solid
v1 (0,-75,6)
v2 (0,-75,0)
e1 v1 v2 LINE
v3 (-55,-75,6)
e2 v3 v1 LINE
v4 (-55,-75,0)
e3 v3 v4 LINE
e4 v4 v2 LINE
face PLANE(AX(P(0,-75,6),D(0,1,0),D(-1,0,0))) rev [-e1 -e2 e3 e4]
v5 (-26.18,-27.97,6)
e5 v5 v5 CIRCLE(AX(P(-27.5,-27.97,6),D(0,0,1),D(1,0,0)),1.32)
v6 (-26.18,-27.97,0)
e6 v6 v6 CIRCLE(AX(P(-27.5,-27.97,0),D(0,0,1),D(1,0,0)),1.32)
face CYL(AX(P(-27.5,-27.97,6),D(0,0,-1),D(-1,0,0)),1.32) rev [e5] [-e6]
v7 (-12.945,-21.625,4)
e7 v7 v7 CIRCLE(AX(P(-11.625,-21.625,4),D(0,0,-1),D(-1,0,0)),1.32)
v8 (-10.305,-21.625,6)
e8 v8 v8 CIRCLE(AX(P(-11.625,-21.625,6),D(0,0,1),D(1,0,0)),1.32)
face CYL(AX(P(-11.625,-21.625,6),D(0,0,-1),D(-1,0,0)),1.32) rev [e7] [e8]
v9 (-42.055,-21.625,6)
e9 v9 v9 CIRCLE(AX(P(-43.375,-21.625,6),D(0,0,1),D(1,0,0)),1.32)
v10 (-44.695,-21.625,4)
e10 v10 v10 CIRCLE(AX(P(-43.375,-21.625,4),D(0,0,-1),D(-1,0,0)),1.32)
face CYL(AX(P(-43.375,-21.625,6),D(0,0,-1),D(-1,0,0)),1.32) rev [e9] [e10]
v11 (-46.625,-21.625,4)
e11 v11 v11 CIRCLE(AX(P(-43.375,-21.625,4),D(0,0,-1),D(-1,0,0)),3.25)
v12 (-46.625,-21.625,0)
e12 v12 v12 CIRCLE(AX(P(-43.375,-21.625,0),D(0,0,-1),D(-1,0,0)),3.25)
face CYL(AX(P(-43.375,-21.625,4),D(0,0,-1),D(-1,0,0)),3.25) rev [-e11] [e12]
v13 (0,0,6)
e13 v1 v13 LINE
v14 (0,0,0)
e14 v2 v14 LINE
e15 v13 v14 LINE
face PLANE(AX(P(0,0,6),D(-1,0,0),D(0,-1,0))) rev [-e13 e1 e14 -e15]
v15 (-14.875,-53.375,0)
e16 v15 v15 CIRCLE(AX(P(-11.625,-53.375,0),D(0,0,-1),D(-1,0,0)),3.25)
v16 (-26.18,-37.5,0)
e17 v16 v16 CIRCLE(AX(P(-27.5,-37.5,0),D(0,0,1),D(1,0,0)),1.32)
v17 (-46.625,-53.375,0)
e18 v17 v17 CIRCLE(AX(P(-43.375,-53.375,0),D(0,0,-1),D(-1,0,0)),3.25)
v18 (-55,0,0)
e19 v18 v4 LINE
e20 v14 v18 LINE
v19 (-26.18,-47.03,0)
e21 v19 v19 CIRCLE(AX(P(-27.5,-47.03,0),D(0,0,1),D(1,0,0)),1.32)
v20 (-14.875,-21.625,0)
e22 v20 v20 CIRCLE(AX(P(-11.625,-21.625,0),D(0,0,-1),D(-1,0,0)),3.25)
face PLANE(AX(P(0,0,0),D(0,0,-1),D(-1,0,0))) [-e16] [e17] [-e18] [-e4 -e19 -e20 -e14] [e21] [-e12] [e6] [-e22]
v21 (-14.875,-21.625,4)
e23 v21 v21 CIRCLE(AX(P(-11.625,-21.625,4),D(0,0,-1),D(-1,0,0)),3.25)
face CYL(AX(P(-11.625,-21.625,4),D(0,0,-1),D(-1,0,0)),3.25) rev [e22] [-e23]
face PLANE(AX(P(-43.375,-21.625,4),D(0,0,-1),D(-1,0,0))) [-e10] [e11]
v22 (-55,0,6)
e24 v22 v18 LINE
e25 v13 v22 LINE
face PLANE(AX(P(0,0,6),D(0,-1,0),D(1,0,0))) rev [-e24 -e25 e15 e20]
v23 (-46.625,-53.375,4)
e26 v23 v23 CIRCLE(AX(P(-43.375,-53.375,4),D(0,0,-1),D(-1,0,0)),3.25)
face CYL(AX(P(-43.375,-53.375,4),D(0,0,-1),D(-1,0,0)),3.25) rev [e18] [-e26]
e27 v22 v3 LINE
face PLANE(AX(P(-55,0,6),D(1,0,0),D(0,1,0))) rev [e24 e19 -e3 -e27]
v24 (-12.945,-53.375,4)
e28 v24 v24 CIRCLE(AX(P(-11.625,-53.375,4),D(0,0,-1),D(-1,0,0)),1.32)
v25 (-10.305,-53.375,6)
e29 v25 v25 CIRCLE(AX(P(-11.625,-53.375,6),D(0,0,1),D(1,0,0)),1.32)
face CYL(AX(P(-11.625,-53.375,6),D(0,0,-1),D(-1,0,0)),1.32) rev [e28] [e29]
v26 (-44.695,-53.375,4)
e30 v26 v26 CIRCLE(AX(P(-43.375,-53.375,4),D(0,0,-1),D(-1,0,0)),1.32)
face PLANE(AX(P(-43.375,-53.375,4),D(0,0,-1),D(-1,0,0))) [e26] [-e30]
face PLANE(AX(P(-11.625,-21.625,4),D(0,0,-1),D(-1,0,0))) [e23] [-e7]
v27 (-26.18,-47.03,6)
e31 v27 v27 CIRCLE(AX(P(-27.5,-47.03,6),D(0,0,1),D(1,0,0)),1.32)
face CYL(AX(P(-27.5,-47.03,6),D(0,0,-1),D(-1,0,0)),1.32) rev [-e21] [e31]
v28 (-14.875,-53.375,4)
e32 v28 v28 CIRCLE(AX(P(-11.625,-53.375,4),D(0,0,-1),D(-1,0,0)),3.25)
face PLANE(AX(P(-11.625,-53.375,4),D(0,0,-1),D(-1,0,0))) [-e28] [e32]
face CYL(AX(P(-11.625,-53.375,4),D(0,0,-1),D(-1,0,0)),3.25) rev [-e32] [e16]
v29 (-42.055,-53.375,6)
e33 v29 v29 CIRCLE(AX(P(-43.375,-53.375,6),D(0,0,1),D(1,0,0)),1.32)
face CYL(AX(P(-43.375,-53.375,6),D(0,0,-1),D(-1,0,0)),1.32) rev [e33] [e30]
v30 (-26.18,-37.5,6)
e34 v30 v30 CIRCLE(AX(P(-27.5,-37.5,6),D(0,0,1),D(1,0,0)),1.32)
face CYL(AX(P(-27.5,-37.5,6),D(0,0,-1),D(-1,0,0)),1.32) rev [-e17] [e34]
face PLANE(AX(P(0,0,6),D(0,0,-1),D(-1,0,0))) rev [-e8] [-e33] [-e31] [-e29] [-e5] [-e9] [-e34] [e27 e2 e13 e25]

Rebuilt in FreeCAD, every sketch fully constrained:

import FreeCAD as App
import Part
import Sketcher

doc = App.newDocument("Part")
body = doc.addObject("PartDesign::Body", "Body")

sketch1 = body.newObject("Sketcher::SketchObject", "Sketch")
sketch1.AttachmentSupport = (doc.getObject("XY_Plane"), [""])
sketch1.MapMode = "FlatFace"
sketch1.addGeometry([
    Part.LineSegment(App.Vector(-55, 0, 0), App.Vector(-55, -75, 0)),
    Part.LineSegment(App.Vector(-55, -75, 0), App.Vector(0, -75, 0)),
    Part.LineSegment(App.Vector(0, -75, 0), App.Vector(0, 0, 0)),
    Part.LineSegment(App.Vector(0, 0, 0), App.Vector(-55, 0, 0)),
    Part.Circle(App.Vector(-43.4, -53.4, 0), App.Vector(0, 0, 1), 1.3),
    Part.Circle(App.Vector(-27.5, -47, 0), App.Vector(0, 0, 1), 1.3),
    Part.Circle(App.Vector(-11.6, -53.4, 0), App.Vector(0, 0, 1), 1.3),
    Part.Circle(App.Vector(-43.4, -21.6, 0), App.Vector(0, 0, 1), 1.3),
    Part.Circle(App.Vector(-27.5, -37.5, 0), App.Vector(0, 0, 1), 1.3),
    Part.Circle(App.Vector(-27.5, -28, 0), App.Vector(0, 0, 1), 1.3),
    Part.Circle(App.Vector(-11.6, -21.6, 0), App.Vector(0, 0, 1), 1.3),
], False)
sketch1.addConstraint([
    Sketcher.Constraint("Coincident", 0, 2, 1, 1),
    Sketcher.Constraint("Coincident", 1, 2, 2, 1),
    Sketcher.Constraint("Coincident", 2, 2, 3, 1),
    Sketcher.Constraint("Coincident", 3, 2, 0, 1),
    Sketcher.Constraint("Vertical", 0),
    Sketcher.Constraint("Horizontal", 1),
    Sketcher.Constraint("Vertical", 2),
    Sketcher.Constraint("Horizontal", 3),
    Sketcher.Constraint("Coincident", 2, 2, -1, 1),
    Sketcher.Constraint("Equal", 4, 5),
    Sketcher.Constraint("Equal", 5, 6),
    Sketcher.Constraint("Equal", 6, 7),
    Sketcher.Constraint("Equal", 7, 8),
    Sketcher.Constraint("Equal", 8, 9),
    Sketcher.Constraint("Equal", 9, 10),
    Sketcher.Constraint("Horizontal", 4, 3, 6, 3),
    Sketcher.Constraint("Horizontal", 7, 3, 10, 3),
    Sketcher.Constraint("Vertical", 4, 3, 7, 3),
    Sketcher.Constraint("Vertical", 5, 3, 8, 3),
    Sketcher.Constraint("Vertical", 8, 3, 9, 3),
    Sketcher.Constraint("Vertical", 6, 3, 10, 3),
    Sketcher.Constraint("Diameter", 4, 2.64),
    Sketcher.Constraint("DistanceX", 1, 1, 1, 2, 55.0),
    Sketcher.Constraint("DistanceY", 0, 2, 0, 1, 75.0),
    Sketcher.Constraint("DistanceX", 5, 3, -1, 1, 27.5),
    Sketcher.Constraint("DistanceY", 8, 3, -1, 1, 37.5),
    Sketcher.Constraint("DistanceY", 5, 3, -1, 1, 47.03),
    Sketcher.Constraint("DistanceY", 9, 3, -1, 1, 27.97),
    Sketcher.Constraint("DistanceX", 4, 3, 6, 3, 31.75),
    Sketcher.Constraint("DistanceY", 4, 3, 7, 3, 31.75),
    Sketcher.Constraint("DistanceX", 4, 3, -1, 1, 43.375),
    Sketcher.Constraint("DistanceY", 4, 3, -1, 1, 53.375),
])
pad1 = body.newObject("PartDesign::Pad", "Pad")
pad1.Profile = sketch1
pad1.Length = 6

sketch2 = body.newObject("Sketcher::SketchObject", "Sketch001")
sketch2.AttachmentSupport = (doc.getObject("XY_Plane"), [""])
sketch2.MapMode = "FlatFace"
sketch2.addGeometry([
    Part.Circle(App.Vector(-11.6, -21.6, 0), App.Vector(0, 0, 1), 3.2),
    Part.Circle(App.Vector(-43.4, -21.6, 0), App.Vector(0, 0, 1), 3.2),
    Part.Circle(App.Vector(-43.4, -53.4, 0), App.Vector(0, 0, 1), 3.2),
    Part.Circle(App.Vector(-11.6, -53.4, 0), App.Vector(0, 0, 1), 3.2),
], False)
sketch2.addConstraint([
    Sketcher.Constraint("Equal", 0, 1),
    Sketcher.Constraint("Equal", 1, 2),
    Sketcher.Constraint("Equal", 2, 3),
    Sketcher.Constraint("Horizontal", 0, 3, 1, 3),
    Sketcher.Constraint("Horizontal", 2, 3, 3, 3),
    Sketcher.Constraint("Vertical", 1, 3, 2, 3),
    Sketcher.Constraint("Vertical", 0, 3, 3, 3),
    Sketcher.Constraint("Diameter", 0, 6.5),
    Sketcher.Constraint("DistanceX", 1, 3, 0, 3, 31.75),
    Sketcher.Constraint("DistanceY", 2, 3, 1, 3, 31.75),
    Sketcher.Constraint("DistanceX", 0, 3, -1, 1, 11.625),
    Sketcher.Constraint("DistanceY", 0, 3, -1, 1, 21.625),
])
pocket1 = body.newObject("PartDesign::Pocket", "Pocket")
pocket1.Profile = sketch2
pocket1.Length = 4
pocket1.Reversed = True

doc.recompute()
